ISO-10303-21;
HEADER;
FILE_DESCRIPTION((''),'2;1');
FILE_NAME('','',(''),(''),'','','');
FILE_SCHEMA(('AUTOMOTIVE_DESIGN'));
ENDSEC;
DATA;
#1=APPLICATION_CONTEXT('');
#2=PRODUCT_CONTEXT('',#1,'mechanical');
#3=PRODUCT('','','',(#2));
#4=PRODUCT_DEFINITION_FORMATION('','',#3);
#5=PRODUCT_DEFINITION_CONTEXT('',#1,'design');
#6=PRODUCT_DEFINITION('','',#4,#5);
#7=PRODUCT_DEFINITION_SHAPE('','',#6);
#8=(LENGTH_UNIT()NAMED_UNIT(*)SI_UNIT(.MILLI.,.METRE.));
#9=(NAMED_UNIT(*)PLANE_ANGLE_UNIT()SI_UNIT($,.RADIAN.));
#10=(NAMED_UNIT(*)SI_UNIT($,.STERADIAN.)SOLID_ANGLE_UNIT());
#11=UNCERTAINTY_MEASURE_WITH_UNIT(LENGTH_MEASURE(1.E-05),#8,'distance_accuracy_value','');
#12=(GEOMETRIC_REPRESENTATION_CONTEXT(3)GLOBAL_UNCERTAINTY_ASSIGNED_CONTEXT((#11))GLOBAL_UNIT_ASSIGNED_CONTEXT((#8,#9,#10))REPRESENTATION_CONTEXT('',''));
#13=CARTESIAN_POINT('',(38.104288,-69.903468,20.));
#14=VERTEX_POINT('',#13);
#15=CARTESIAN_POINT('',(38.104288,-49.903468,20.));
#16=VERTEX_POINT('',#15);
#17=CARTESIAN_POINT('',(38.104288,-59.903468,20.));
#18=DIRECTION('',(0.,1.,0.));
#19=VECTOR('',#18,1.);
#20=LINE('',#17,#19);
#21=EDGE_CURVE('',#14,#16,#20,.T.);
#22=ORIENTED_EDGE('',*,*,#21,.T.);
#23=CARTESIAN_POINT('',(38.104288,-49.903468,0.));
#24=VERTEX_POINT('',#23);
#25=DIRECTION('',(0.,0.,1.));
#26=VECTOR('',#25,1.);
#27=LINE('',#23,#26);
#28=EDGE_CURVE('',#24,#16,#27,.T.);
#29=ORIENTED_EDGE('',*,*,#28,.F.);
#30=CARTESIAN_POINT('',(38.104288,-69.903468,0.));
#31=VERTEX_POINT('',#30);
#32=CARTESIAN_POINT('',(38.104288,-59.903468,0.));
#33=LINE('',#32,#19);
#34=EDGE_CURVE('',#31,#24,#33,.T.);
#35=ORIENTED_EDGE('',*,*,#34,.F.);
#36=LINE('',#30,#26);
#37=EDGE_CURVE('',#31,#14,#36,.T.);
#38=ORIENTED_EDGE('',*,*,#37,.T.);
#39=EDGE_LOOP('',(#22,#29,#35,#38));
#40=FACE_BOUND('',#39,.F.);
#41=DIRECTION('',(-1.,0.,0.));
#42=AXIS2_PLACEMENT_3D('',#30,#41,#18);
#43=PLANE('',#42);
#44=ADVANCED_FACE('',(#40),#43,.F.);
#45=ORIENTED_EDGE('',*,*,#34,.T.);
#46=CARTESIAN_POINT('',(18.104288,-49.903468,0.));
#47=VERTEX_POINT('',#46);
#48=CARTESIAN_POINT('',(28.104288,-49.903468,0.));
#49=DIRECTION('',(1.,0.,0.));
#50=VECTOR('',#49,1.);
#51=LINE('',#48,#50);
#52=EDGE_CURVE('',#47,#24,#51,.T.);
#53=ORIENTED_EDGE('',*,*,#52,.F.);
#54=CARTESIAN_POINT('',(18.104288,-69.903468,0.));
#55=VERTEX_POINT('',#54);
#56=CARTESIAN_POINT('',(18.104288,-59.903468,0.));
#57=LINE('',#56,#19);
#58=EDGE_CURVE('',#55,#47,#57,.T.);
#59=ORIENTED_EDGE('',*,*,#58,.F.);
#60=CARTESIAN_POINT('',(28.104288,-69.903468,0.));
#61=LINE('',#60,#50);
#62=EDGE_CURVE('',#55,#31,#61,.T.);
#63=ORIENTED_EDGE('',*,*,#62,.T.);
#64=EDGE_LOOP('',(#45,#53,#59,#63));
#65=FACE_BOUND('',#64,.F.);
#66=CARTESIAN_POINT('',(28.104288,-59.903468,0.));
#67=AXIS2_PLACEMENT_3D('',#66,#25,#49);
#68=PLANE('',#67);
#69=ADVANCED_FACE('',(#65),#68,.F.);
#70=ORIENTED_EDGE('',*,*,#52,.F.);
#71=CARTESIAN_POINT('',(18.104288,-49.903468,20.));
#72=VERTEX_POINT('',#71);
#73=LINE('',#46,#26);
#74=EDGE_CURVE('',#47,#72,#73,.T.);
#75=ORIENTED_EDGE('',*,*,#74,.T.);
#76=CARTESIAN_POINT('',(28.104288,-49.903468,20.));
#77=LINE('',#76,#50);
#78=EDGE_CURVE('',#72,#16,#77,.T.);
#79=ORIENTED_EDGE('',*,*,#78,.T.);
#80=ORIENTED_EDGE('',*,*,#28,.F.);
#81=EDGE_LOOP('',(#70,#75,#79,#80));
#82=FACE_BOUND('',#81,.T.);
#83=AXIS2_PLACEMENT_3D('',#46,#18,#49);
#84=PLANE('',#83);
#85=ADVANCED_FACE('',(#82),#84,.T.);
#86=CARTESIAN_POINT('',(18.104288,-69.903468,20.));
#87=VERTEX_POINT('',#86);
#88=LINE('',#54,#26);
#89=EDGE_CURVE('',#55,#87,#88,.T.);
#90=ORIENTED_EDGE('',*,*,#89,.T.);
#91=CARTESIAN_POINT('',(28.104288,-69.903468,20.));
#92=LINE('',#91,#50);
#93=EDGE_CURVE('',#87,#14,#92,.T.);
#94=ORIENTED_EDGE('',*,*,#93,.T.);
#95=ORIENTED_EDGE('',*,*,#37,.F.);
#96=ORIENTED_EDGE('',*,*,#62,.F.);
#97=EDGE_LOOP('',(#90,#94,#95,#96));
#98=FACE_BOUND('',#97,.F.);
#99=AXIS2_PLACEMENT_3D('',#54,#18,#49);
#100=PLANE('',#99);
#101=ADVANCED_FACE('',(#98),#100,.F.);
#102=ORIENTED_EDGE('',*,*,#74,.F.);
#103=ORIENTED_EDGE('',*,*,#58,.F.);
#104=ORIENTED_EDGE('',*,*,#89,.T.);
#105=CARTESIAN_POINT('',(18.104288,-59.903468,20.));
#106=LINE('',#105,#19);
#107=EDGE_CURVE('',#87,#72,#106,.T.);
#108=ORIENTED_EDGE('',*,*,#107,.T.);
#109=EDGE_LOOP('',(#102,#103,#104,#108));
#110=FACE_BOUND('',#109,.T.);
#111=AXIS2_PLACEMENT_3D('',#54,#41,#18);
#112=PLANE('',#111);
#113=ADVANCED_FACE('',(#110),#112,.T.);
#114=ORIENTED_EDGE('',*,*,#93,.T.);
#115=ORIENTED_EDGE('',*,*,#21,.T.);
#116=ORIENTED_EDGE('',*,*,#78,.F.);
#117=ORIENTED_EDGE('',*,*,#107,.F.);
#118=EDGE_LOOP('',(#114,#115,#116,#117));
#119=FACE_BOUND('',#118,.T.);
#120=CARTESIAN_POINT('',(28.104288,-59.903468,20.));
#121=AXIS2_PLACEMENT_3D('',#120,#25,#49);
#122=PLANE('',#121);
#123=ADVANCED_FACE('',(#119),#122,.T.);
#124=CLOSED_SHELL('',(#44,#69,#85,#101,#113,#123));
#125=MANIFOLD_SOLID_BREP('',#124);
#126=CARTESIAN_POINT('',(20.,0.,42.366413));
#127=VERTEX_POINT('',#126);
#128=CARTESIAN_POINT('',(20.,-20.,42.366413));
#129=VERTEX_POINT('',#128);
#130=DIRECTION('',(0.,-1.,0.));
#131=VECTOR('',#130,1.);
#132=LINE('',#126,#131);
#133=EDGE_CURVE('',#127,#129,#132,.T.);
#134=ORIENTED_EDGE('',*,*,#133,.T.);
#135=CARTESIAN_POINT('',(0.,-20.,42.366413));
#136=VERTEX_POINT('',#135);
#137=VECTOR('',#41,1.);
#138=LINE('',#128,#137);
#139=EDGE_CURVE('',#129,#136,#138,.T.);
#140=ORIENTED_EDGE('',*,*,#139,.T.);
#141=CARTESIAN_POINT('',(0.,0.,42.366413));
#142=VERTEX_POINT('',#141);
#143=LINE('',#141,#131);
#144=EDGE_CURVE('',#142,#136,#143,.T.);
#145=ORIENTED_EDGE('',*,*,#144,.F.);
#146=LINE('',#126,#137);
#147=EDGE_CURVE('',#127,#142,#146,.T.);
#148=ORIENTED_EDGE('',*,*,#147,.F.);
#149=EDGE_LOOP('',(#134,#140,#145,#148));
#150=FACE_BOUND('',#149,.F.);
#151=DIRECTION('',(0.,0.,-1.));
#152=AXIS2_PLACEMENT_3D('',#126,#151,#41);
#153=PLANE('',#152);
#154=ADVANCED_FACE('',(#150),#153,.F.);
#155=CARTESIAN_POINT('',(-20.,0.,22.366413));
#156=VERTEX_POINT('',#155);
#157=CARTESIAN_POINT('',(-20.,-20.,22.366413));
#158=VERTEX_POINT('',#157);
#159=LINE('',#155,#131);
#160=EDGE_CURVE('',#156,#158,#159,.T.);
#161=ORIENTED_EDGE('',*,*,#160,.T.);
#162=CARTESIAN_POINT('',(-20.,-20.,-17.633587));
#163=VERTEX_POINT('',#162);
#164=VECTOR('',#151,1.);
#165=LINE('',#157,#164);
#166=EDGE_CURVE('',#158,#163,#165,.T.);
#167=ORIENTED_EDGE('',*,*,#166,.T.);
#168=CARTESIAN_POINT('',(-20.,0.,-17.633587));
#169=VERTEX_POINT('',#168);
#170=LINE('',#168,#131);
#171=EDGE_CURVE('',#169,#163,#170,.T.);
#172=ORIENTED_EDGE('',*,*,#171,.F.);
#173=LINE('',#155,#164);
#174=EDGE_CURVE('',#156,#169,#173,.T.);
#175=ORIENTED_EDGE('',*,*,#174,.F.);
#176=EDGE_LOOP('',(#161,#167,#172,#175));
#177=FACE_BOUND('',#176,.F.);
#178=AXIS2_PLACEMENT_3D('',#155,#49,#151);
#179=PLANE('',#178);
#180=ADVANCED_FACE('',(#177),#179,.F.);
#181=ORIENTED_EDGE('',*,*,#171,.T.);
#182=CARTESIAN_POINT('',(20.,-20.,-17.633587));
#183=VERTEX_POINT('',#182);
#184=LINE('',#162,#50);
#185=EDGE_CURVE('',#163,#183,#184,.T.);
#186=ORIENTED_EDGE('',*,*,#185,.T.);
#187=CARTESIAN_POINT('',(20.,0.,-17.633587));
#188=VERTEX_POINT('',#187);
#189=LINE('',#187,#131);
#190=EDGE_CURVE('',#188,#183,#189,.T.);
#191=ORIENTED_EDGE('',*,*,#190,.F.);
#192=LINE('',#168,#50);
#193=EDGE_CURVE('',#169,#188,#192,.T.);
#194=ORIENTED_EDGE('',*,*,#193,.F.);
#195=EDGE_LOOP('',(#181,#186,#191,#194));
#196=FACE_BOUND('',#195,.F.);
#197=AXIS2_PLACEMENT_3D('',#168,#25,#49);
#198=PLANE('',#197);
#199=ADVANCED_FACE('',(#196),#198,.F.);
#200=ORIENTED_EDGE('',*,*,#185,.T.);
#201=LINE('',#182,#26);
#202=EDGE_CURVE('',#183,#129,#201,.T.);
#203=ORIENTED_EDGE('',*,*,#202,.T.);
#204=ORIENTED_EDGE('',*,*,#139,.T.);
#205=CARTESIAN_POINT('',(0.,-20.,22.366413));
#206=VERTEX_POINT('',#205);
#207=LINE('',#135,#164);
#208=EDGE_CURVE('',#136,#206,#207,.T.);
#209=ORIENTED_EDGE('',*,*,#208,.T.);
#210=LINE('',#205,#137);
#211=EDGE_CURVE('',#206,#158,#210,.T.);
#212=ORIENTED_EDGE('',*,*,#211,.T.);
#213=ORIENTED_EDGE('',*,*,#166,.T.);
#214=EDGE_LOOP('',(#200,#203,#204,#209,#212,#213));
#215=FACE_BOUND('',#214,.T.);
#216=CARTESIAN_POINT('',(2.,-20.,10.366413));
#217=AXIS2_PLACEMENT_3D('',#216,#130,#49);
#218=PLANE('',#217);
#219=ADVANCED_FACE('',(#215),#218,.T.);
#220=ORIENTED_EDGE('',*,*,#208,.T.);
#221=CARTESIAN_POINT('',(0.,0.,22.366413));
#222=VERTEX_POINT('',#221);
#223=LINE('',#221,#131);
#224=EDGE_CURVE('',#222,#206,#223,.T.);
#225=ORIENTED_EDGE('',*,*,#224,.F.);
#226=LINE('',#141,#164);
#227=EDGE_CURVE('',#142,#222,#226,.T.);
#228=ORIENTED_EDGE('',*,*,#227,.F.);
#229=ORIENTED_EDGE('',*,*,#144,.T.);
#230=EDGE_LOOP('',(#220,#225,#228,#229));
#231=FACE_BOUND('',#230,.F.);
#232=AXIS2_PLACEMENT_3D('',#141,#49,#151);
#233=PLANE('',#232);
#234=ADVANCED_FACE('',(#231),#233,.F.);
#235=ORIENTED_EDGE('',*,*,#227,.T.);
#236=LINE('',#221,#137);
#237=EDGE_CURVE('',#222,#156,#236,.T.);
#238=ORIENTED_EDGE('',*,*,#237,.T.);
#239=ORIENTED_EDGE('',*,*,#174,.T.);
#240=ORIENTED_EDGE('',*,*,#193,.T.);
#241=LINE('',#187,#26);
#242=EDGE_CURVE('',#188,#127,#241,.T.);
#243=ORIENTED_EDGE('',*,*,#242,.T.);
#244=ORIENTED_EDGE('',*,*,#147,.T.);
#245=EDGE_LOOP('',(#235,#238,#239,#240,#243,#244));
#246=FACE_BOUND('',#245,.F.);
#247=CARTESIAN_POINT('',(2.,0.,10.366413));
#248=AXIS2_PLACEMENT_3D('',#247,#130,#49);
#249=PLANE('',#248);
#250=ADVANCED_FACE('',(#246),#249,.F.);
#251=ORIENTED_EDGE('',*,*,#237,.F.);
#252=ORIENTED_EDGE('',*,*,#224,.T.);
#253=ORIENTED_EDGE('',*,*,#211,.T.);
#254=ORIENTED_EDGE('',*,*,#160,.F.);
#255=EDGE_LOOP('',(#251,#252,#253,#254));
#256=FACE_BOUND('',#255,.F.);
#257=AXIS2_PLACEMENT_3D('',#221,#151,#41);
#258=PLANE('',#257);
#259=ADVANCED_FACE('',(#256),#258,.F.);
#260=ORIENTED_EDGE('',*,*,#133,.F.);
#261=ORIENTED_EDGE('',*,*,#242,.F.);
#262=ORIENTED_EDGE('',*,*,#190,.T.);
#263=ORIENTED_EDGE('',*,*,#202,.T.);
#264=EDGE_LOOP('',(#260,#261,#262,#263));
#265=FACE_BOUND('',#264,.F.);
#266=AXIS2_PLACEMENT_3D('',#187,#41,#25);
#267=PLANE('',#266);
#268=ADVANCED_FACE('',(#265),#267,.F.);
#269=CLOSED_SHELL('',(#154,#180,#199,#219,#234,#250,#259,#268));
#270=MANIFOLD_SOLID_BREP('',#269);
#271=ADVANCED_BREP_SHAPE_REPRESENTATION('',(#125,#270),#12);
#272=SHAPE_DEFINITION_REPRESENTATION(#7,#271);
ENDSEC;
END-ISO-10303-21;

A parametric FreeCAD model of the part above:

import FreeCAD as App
import Part
import Sketcher

V = App.Vector
Q = App.Units.Quantity


def add_polygon(sketch, points):
    """Adds a closed chain of lines whose ends are joined by coincident constraints."""
    first, n = sketch.GeometryCount, len(points)
    for a, b in zip(points, points[1:] + points[:1]):
        sketch.addGeometry(Part.LineSegment(App.Vector(*a, 0), App.Vector(*b, 0)), False)
    for i in range(n):
        sketch.addConstraint(Sketcher.Constraint("Coincident", first + i, 2, first + (i + 1) % n, 1))

doc = App.newDocument("Part")
params = doc.addObject("Spreadsheet::Sheet", "Params")
for row, (alias, value) in enumerate([
    ("sketch1_width", "20 mm"),
    ("pad1_length", "20 mm"),
    ("sketch2_width", "20 mm"),
    ("pad2_length", "20 mm"),
], start=1):
    params.set(f"A{row}", alias)
    params.set(f"B{row}", "=" + value)
    params.setAlias(f"B{row}", alias)

body = doc.addObject("PartDesign::Body", "Body")

sketch1 = body.newObject("Sketcher::SketchObject", "Sketch")
sketch1.AttachmentSupport = (doc.getObject("XZ_Plane"), [""])
sketch1.MapMode = "FlatFace"
add_polygon(sketch1, [(20, 42), (0, 42), (0, 22), (-20, 22), (-20, -18), (20, -18)])
sketch1.addConstraint([
    Sketcher.Constraint("Horizontal", 0),
    Sketcher.Constraint("Vertical", 1),
    Sketcher.Constraint("Horizontal", 2),
    Sketcher.Constraint("Vertical", 3),
    Sketcher.Constraint("Horizontal", 4),
    Sketcher.Constraint("Vertical", 5),
    Sketcher.Constraint("PointOnObject", 0, 2, -2),
    Sketcher.Constraint("Equal", 0, 2),
    Sketcher.Constraint("Equal", 2, 1),
    Sketcher.Constraint("Equal", 4, 3),
    Sketcher.Constraint("DistanceX", 0, 2, 0, 1, Q("20 mm")),
    Sketcher.Constraint("DistanceY", -1, 1, 0, 2, Q("42.366413 mm")),
])
sketch1.setExpression("Constraints[16]", "Params.sketch1_width")
pad1 = body.newObject("PartDesign::Pad", "Pad")
pad1.Profile = sketch1
pad1.setExpression("Length", "Params.pad1_length")
body2 = doc.addObject("PartDesign::Body", "Body001")

sketch2 = body2.newObject("Sketcher::SketchObject", "Sketch001")
sketch2.AttachmentSupport = (doc.getObject("XY_Plane001"), [""])
sketch2.MapMode = "FlatFace"
add_polygon(sketch2, [(18, -50), (18, -70), (38, -70), (38, -50)])
sketch2.addConstraint([
    Sketcher.Constraint("Vertical", 0),
    Sketcher.Constraint("Horizontal", 1),
    Sketcher.Constraint("Vertical", 2),
    Sketcher.Constraint("Horizontal", 3),
    Sketcher.Constraint("Equal", 3, 0),
    Sketcher.Constraint("DistanceX", 1, 1, 1, 2, Q("20 mm")),
    Sketcher.Constraint("DistanceX", -1, 1, 0, 2, Q("18.104288 mm")),
    Sketcher.Constraint("DistanceY", 0, 2, -1, 1, Q("69.903468 mm")),
])
sketch2.setExpression("Constraints[9]", "Params.sketch2_width")
pad2 = body2.newObject("PartDesign::Pad", "Pad001")
pad2.Profile = sketch2
pad2.setExpression("Length", "Params.pad2_length")

doc.recompute()
